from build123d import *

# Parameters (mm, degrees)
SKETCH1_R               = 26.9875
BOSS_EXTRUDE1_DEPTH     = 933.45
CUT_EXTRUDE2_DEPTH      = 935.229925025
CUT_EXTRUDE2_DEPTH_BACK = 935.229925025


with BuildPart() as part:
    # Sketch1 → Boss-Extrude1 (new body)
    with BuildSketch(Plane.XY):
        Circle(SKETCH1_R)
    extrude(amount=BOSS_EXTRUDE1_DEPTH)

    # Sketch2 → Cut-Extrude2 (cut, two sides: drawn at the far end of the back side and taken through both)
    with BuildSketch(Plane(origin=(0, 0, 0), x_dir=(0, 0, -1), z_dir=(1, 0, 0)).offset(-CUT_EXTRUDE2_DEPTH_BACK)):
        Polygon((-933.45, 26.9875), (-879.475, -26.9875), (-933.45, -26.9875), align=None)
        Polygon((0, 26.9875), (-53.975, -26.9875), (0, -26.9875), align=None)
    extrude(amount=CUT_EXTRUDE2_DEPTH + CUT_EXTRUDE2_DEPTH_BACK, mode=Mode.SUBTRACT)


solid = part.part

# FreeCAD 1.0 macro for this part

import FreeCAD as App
import Part
import Sketcher
Q = App.Units.Quantity

doc = App.newDocument("Part")
body = doc.addObject("PartDesign::Body", "Body")

# Sketch on XY plane
sketch1 = body.newObject("Sketcher::SketchObject", "Sketch")
sketch1.AttachmentSupport = (doc.getObject("XY_Plane"), [""])
sketch1.MapMode = "FlatFace"
sketch1.addGeometry(Part.Circle(App.Vector(0, 0, 0), App.Vector(0, 0, 1), 26.9875), False)
sketch1.addConstraint([
    Sketcher.Constraint("Coincident", 0, 3, -1, 1),
    Sketcher.Constraint("Diameter", 0, Q("2.125 in")),
])
pad1 = body.newObject("PartDesign::Pad", "Pad")
pad1.Profile = sketch1
pad1.Length = Q("36.75 in")

# Sketch on YZ plane
sketch2 = body.newObject("Sketcher::SketchObject", "Sketch001")
sketch2.AttachmentSupport = (doc.getObject("YZ_Plane"), [""])
sketch2.MapMode = "FlatFace"
sketch2.addGeometry([
    Part.LineSegment(App.Vector(-26.9875, 879.475, 0), App.Vector(26.9875, 933.45, 0)),  # 0
    Part.LineSegment(App.Vector(26.9875, 933.45, 0), App.Vector(-26.9875, 933.45, 0)),  # 1
    Part.LineSegment(App.Vector(-26.9875, 933.45, 0), App.Vector(-26.9875, 879.475, 0)),  # 2
    Part.LineSegment(App.Vector(26.9875, 0, 0), App.Vector(-26.9875, 53.975, 0)),  # 3
    Part.LineSegment(App.Vector(-26.9875, 53.975, 0), App.Vector(-26.9875, 0, 0)),  # 4
    Part.LineSegment(App.Vector(-26.9875, 0, 0), App.Vector(26.9875, 0, 0)),  # 5
], False)
sketch2.addConstraint([
    Sketcher.Constraint("Coincident", 0, 2, 1, 1),
    Sketcher.Constraint("Coincident", 1, 2, 2, 1),
    Sketcher.Constraint("Coincident", 2, 2, 0, 1),
    Sketcher.Constraint("Coincident", 3, 2, 4, 1),
    Sketcher.Constraint("Coincident", 4, 2, 5, 1),
    Sketcher.Constraint("Coincident", 5, 2, 3, 1),
    Sketcher.Constraint("Horizontal", 1),
    Sketcher.Constraint("Vertical", 2),
    Sketcher.Constraint("Vertical", 4),
    Sketcher.Constraint("Horizontal", 5),
    Sketcher.Constraint("Symmetric", 4, 2, 5, 2, -1, 1),
    Sketcher.Constraint("Perpendicular", 0, 3),
    Sketcher.Constraint("Vertical", 2, 2, 3, 2),
    Sketcher.Constraint("Vertical", 0, 2, 5, 2),
    Sketcher.Constraint("Equal", 5, 2),
    Sketcher.Constraint("DistanceY", 3, 2, 2, 2, Q("32.5 in")),
    Sketcher.Constraint("DistanceX", 1, 2, 1, 1, Q("2.125 in")),
])
pocket1 = body.newObject("PartDesign::Pocket", "Pocket")
pocket1.Profile = sketch2
pocket1.Type = "ThroughAll"
pocket1.Midplane = True

doc.recompute()
